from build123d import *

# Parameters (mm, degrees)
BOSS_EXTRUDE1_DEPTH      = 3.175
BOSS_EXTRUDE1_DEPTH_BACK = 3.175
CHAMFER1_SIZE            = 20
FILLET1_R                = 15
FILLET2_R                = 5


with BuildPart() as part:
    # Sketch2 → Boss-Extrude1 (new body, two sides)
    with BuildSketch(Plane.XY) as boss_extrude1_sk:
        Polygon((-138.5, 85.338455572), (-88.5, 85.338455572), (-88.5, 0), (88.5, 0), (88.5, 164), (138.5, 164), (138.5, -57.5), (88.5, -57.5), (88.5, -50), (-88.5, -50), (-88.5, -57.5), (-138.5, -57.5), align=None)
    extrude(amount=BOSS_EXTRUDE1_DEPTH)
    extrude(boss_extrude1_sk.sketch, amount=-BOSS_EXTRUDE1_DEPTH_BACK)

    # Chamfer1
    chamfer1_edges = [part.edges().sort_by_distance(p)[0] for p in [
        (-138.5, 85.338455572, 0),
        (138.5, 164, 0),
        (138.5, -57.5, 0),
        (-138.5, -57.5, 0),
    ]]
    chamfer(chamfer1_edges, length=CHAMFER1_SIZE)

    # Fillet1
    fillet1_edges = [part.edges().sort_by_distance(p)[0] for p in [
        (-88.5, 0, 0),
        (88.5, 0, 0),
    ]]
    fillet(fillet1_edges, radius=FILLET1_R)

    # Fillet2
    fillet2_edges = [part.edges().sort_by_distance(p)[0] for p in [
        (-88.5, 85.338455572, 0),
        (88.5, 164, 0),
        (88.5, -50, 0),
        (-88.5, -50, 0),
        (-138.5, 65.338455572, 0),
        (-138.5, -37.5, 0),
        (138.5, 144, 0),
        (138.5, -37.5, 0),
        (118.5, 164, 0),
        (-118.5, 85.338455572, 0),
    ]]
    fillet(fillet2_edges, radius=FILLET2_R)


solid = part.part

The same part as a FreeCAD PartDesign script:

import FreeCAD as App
import Part
import Sketcher
from FreeCAD import Vector


def edges_at(feature, points):
    """Names of the edges that pass closest to the given points."""
    edges = feature.Shape.Edges
    near = lambda p: min(range(len(edges)), key=lambda i: edges[i].distToShape(Part.Vertex(*p))[0])
    return sorted({f"Edge{near(p) + 1}" for p in points})

doc = App.newDocument("Part")
body = doc.addObject("PartDesign::Body", "Body")

sketch1 = body.newObject("Sketcher::SketchObject", "Sketch")
sketch1.AttachmentSupport = (doc.getObject("XY_Plane"), [""])
sketch1.MapMode = "FlatFace"
sketch1.addGeometry([
    Part.LineSegment(Vector(-88, 85, 0), Vector(-138, 85, 0)),
    Part.LineSegment(Vector(-138, 85, 0), Vector(-138, -58, 0)),
    Part.LineSegment(Vector(-138, -58, 0), Vector(-88, -58, 0)),
    Part.LineSegment(Vector(-88, -58, 0), Vector(-88, -50, 0)),
    Part.LineSegment(Vector(-88, -50, 0), Vector(88, -50, 0)),
    Part.LineSegment(Vector(88, -50, 0), Vector(88, -58, 0)),
    Part.LineSegment(Vector(88, -58, 0), Vector(138, -58, 0)),
    Part.LineSegment(Vector(138, -58, 0), Vector(138, 164, 0)),
    Part.LineSegment(Vector(138, 164, 0), Vector(88, 164, 0)),
    Part.LineSegment(Vector(88, 164, 0), Vector(88, 0, 0)),
    Part.LineSegment(Vector(88, 0, 0), Vector(-88, 0, 0)),
    Part.LineSegment(Vector(-88, 0, 0), Vector(-88, 85, 0)),
], False)
sketch1.addConstraint([
    Sketcher.Constraint("Coincident", 0, 2, 1, 1),
    Sketcher.Constraint("Coincident", 1, 2, 2, 1),
    Sketcher.Constraint("Coincident", 2, 2, 3, 1),
    Sketcher.Constraint("Coincident", 3, 2, 4, 1),
    Sketcher.Constraint("Coincident", 4, 2, 5, 1),
    Sketcher.Constraint("Coincident", 5, 2, 6, 1),
    Sketcher.Constraint("Coincident", 6, 2, 7, 1),
    Sketcher.Constraint("Coincident", 7, 2, 8, 1),
    Sketcher.Constraint("Coincident", 8, 2, 9, 1),
    Sketcher.Constraint("Coincident", 9, 2, 10, 1),
    Sketcher.Constraint("Coincident", 10, 2, 11, 1),
    Sketcher.Constraint("Coincident", 11, 2, 0, 1),
    Sketcher.Constraint("Horizontal", 0),
    Sketcher.Constraint("Vertical", 1),
    Sketcher.Constraint("Horizontal", 2),
    Sketcher.Constraint("Vertical", 3),
    Sketcher.Constraint("Horizontal", 4),
    Sketcher.Constraint("Vertical", 5),
    Sketcher.Constraint("Horizontal", 6),
    Sketcher.Constraint("Vertical", 7),
    Sketcher.Constraint("Horizontal", 8),
    Sketcher.Constraint("Vertical", 9),
    Sketcher.Constraint("Horizontal", 10),
    Sketcher.Constraint("Vertical", 11),
    Sketcher.Constraint("Symmetric", 9, 2, 10, 2, -1, 1),
    Sketcher.Constraint("Symmetric", 2, 2, 5, 2, -2),
    Sketcher.Constraint("Vertical", 5, 2, 8, 2),
    Sketcher.Constraint("Equal", 2, 6),
    Sketcher.Constraint("DistanceX", 0, 2, 0, 1, 50.0),
    Sketcher.Constraint("DistanceX", 4, 1, 4, 2, 177.0),
    Sketcher.Constraint("DistanceY", 9, 2, 9, 1, 164.0),
    Sketcher.Constraint("DistanceY", 3, 1, 3, 2, 7.5),
    Sketcher.Constraint("DistanceY", 7, 1, 7, 2, 221.5),
    Sketcher.Constraint("DistanceY", 1, 2, 1, 1, 142.838456),
])
pad1 = body.newObject("PartDesign::Pad", "Pad")
pad1.Profile = sketch1
pad1.Type = "TwoLengths"
pad1.Length = 3.175
pad1.Length2 = 3.175
doc.recompute()

chamfer = body.newObject("PartDesign::Chamfer", "Chamfer")
chamfer.Base = (pad1, edges_at(pad1, [
    (-138.5, 85.338, 0),
    (138.5, 164, 0),
    (138.5, -57.5, 0),
    (-138.5, -57.5, 0),
]))
chamfer.Size = 20
doc.recompute()

fillet = body.newObject("PartDesign::Fillet", "Fillet")
fillet.Base = (chamfer, edges_at(chamfer, [(-88.5, 0, 0), (88.5, 0, 0)]))
fillet.Radius = 15
doc.recompute()

fillet2 = body.newObject("PartDesign::Fillet", "Fillet001")
fillet2.Base = (fillet, edges_at(fillet, [
    (-88.5, 85.338, 0),
    (88.5, 164, 0),
    (88.5, -50, 0),
    (-88.5, -50, 0),
    (-138.5, 65.338, 0),
    (-138.5, -37.5, 0),
    (138.5, 144, 0),
    (138.5, -37.5, 0),
    (118.5, 164, 0),
    (-118.5, 85.338, 0),
]))
fillet2.Radius = 5

doc.recompute()
